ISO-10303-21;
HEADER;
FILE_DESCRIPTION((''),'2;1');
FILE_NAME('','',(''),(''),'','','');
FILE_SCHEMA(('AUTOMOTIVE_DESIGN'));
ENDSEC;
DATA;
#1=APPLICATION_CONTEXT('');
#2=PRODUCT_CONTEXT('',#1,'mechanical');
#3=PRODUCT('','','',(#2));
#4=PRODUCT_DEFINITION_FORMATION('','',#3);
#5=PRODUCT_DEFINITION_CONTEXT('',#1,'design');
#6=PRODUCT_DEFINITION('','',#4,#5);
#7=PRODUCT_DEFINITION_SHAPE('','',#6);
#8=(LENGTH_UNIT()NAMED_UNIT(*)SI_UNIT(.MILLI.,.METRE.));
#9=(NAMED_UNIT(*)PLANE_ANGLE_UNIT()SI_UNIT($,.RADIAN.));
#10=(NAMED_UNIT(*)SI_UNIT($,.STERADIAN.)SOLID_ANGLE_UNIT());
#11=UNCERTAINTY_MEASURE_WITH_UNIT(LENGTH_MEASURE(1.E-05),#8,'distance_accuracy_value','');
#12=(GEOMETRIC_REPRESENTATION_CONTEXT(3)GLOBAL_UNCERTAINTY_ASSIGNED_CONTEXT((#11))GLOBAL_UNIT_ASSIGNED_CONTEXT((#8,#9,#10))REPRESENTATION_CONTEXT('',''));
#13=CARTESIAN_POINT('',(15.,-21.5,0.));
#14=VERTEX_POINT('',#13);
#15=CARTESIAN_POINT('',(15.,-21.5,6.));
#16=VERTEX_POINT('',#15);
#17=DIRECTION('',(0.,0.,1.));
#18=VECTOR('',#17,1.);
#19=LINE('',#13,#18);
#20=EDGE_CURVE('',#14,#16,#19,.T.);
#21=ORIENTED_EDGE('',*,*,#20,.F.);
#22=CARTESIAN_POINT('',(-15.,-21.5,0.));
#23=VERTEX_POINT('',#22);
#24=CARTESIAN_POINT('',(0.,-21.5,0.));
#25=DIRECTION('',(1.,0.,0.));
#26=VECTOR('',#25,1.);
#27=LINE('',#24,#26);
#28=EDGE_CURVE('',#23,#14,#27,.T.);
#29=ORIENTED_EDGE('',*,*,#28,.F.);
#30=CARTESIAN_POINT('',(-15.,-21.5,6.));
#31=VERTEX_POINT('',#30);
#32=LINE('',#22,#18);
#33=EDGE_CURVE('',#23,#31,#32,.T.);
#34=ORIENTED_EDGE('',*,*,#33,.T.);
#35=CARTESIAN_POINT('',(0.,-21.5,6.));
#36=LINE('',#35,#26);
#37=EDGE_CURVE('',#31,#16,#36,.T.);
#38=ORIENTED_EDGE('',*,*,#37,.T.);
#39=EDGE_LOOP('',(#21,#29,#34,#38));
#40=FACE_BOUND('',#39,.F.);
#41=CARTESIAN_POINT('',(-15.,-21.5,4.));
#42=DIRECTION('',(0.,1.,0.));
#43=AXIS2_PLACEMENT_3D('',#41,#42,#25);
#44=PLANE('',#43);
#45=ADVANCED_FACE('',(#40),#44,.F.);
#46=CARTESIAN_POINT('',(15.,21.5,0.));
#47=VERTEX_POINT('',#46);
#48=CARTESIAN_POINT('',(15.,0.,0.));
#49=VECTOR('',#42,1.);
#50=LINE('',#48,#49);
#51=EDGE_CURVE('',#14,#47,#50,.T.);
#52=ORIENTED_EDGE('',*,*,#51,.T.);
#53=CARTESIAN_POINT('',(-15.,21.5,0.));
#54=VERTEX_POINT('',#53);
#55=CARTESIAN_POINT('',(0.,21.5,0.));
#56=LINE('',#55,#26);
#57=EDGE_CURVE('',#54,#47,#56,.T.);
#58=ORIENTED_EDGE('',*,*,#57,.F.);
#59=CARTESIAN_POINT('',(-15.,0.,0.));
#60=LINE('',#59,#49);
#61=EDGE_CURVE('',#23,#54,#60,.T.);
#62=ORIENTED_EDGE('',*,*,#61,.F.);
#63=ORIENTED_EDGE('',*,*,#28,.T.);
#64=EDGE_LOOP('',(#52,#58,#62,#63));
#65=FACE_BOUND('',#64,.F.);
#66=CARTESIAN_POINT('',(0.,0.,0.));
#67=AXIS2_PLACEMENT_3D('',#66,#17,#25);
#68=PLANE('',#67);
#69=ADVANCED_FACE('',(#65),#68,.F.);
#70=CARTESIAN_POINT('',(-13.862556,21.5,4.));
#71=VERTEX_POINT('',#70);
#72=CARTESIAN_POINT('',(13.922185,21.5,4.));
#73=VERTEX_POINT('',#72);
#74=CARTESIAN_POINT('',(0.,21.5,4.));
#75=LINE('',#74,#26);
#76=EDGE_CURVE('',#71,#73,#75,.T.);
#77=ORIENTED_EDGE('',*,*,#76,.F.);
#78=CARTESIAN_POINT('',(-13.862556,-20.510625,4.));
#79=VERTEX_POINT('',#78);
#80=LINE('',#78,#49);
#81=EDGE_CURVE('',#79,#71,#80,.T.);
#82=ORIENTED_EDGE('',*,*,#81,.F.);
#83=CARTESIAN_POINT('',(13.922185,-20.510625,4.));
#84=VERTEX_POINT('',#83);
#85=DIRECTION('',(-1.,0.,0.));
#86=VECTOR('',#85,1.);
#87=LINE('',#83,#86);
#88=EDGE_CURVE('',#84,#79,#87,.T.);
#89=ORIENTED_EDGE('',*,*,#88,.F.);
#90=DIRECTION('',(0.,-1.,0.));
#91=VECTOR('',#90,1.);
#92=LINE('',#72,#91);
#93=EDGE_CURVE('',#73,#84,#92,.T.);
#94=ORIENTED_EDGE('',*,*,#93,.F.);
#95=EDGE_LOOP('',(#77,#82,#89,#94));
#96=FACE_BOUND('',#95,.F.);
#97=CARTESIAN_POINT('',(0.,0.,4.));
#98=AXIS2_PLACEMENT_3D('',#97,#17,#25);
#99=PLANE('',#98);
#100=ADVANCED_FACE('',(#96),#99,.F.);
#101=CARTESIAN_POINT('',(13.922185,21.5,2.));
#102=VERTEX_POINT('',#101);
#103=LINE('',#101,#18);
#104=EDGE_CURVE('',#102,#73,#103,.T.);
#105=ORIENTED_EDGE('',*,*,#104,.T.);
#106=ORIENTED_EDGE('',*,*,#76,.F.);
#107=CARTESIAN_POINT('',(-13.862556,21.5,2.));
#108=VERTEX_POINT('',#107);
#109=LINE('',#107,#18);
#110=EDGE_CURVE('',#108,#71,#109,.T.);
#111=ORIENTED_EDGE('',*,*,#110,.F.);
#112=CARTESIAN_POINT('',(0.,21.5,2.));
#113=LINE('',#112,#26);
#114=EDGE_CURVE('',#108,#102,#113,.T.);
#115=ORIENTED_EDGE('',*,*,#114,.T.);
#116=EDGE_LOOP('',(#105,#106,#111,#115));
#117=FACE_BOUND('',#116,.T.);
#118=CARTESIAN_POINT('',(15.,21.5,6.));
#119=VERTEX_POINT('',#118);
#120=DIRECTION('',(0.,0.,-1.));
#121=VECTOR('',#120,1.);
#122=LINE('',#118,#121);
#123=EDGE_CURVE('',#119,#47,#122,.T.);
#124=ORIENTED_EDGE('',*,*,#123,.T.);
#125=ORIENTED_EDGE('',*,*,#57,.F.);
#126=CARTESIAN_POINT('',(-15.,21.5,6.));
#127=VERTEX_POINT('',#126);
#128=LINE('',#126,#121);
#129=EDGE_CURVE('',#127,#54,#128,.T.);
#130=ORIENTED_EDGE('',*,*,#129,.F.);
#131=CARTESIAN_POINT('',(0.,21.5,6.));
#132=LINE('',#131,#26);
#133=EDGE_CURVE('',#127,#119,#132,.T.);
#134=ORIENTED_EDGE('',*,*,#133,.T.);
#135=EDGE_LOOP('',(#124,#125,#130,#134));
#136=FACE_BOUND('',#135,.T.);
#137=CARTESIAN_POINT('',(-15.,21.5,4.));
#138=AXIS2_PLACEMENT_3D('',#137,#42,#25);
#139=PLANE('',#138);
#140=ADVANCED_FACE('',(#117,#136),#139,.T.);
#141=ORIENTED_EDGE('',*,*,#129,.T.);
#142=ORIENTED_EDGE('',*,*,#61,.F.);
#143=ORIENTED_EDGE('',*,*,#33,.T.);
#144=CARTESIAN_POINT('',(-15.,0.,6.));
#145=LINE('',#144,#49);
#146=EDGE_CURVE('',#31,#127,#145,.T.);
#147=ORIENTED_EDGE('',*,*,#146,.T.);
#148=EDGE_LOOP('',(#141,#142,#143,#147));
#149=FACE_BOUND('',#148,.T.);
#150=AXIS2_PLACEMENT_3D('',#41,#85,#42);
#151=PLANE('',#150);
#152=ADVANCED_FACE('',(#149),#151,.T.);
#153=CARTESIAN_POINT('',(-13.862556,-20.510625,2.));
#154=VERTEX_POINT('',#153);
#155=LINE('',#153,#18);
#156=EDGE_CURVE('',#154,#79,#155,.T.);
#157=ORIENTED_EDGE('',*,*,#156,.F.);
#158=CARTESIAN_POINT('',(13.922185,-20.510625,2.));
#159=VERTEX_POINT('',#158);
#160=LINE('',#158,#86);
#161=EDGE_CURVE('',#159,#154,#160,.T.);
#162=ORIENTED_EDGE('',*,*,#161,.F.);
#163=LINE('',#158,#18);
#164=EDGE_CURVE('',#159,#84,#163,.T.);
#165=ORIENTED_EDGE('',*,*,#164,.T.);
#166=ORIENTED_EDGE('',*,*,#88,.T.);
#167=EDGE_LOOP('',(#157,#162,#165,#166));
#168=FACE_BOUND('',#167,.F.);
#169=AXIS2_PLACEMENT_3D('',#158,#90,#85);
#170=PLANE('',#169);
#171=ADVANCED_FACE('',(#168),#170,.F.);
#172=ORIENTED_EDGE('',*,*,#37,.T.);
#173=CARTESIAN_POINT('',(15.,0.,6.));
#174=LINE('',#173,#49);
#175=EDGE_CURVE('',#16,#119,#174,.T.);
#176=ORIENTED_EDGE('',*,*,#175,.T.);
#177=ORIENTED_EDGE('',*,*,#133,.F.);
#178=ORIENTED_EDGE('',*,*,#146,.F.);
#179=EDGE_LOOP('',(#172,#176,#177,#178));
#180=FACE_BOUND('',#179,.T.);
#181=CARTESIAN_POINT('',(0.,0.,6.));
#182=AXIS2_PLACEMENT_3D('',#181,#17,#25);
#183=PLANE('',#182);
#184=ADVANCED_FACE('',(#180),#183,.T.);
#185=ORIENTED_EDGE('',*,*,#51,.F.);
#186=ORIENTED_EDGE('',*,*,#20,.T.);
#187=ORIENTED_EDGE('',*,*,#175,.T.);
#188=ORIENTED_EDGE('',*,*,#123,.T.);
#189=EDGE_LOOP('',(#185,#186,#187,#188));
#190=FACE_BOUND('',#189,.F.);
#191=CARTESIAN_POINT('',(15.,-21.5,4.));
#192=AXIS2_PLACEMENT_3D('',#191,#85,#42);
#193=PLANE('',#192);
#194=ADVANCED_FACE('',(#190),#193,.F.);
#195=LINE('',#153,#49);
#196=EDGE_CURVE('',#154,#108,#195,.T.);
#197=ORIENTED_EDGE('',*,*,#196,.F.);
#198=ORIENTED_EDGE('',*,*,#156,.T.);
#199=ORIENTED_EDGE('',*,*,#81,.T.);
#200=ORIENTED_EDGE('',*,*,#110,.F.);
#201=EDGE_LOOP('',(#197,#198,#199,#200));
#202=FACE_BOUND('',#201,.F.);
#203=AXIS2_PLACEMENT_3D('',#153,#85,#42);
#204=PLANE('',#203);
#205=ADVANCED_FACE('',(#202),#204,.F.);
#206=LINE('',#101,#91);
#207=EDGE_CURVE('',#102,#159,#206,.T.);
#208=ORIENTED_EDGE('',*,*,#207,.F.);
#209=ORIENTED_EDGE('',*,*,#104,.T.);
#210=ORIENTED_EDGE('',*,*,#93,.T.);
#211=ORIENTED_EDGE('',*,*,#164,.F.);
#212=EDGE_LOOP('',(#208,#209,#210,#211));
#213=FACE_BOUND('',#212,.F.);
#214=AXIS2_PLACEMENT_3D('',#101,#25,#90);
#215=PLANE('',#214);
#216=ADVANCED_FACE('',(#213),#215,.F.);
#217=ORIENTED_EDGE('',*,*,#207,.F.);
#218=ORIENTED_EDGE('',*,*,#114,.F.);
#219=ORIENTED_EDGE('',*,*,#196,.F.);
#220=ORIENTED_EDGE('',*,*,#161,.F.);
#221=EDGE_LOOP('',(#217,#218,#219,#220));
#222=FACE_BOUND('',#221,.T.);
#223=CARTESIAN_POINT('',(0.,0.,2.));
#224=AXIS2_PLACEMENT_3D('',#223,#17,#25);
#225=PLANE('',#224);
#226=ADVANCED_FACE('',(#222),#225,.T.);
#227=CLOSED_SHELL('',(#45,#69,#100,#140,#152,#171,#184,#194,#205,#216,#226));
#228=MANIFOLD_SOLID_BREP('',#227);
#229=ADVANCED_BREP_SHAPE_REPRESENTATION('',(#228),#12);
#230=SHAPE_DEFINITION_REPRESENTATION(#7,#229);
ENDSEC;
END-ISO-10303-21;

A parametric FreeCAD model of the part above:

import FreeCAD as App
import Part
import Sketcher
from FreeCAD import Vector

doc = App.newDocument("Part")
body = doc.addObject("PartDesign::Body", "Body")

# Sketch on XY plane
sketch1 = body.newObject("Sketcher::SketchObject", "Sketch")
sketch1.AttachmentSupport = (doc.getObject("XY_Plane"), [""])
sketch1.MapMode = "FlatFace"
sketch1.addGeometry([
    Part.LineSegment(Vector(-15, 21.5, 0), Vector(-15, -21.5, 0)),
    Part.LineSegment(Vector(-15, -21.5, 0), Vector(15, -21.5, 0)),
    Part.LineSegment(Vector(15, -21.5, 0), Vector(15, 21.5, 0)),
    Part.LineSegment(Vector(15, 21.5, 0), Vector(-15, 21.5, 0)),
], False)
sketch1.addConstraint([
    Sketcher.Constraint("Coincident", 0, 2, 1, 1),
    Sketcher.Constraint("Coincident", 1, 2, 2, 1),
    Sketcher.Constraint("Coincident", 2, 2, 3, 1),
    Sketcher.Constraint("Coincident", 3, 2, 0, 1),
    Sketcher.Constraint("Vertical", 0),
    Sketcher.Constraint("Horizontal", 1),
    Sketcher.Constraint("Vertical", 2),
    Sketcher.Constraint("Horizontal", 3),
    Sketcher.Constraint("Symmetric", 0, 2, 2, 2, -1, 1),
    Sketcher.Constraint("DistanceX", 1, 1, 1, 2, 30.0),
    Sketcher.Constraint("DistanceY", 0, 2, 0, 1, 43.0),
])
pad1 = body.newObject("PartDesign::Pad", "Pad")
pad1.Profile = sketch1
pad1.Length = 2

# Sketch on XY plane
sketch2 = body.newObject("Sketcher::SketchObject", "Sketch001")
sketch2.AttachmentSupport = (doc.getObject("XY_Plane"), [""])
sketch2.MapMode = "FlatFace"
sketch2.AttachmentOffset = App.Placement(Vector(0, 0, 2), App.Rotation())
sketch2.addGeometry([
    Part.LineSegment(Vector(-13.862556, -20.510625, 0), Vector(-13.862556, 21.5, 0)),  # 0
    Part.LineSegment(Vector(-13.862556, 21.5, 0), Vector(-15, 21.5, 0)),  # 1
    Part.LineSegment(Vector(-15, 21.5, 0), Vector(-15, -21.5, 0)),  # 2
    Part.LineSegment(Vector(-15, -21.5, 0), Vector(15, -21.5, 0)),  # 3
    Part.LineSegment(Vector(15, -21.5, 0), Vector(15, 21.5, 0)),  # 4
    Part.LineSegment(Vector(15, 21.5, 0), Vector(13.922185, 21.5, 0)),  # 5
    Part.LineSegment(Vector(13.922185, 21.5, 0), Vector(13.922185, -20.510625, 0)),  # 6
    Part.LineSegment(Vector(13.922185, -20.510625, 0), Vector(-13.862556, -20.510625, 0)),  # 7
], False)
sketch2.addConstraint([
    Sketcher.Constraint("Coincident", 0, 2, 1, 1),
    Sketcher.Constraint("Coincident", 1, 2, 2, 1),
    Sketcher.Constraint("Coincident", 2, 2, 3, 1),
    Sketcher.Constraint("Coincident", 3, 2, 4, 1),
    Sketcher.Constraint("Coincident", 4, 2, 5, 1),
    Sketcher.Constraint("Coincident", 5, 2, 6, 1),
    Sketcher.Constraint("Coincident", 6, 2, 7, 1),
    Sketcher.Constraint("Coincident", 7, 2, 0, 1),
    Sketcher.Constraint("Vertical", 0),
    Sketcher.Constraint("Horizontal", 1),
    Sketcher.Constraint("Vertical", 2),
    Sketcher.Constraint("Horizontal", 3),
    Sketcher.Constraint("Vertical", 4),
    Sketcher.Constraint("Horizontal", 5),
    Sketcher.Constraint("Vertical", 6),
    Sketcher.Constraint("Horizontal", 7),
    Sketcher.Constraint("Symmetric", 1, 2, 3, 2, -1, 1),
    Sketcher.Constraint("Horizontal", 1, 2, 4, 2),
    Sketcher.Constraint("DistanceX", 3, 1, 3, 2, 30.0),
    Sketcher.Constraint("DistanceY", 2, 2, 2, 1, 43.0),
    Sketcher.Constraint("DistanceX", 7, 2, 7, 1, 27.784741),
    Sketcher.Constraint("DistanceX", 1, 2, 1, 1, 1.137444),
    Sketcher.Constraint("DistanceY", 0, 1, 0, 2, 42.010625),
])
pad2 = body.newObject("PartDesign::Pad", "Pad001")
pad2.Profile = sketch2
pad2.Length = 2

# Sketch on XY plane
sketch3 = body.newObject("Sketcher::SketchObject", "Sketch002")
sketch3.AttachmentSupport = (doc.getObject("XY_Plane"), [""])
sketch3.MapMode = "FlatFace"
sketch3.AttachmentOffset = App.Placement(Vector(0, 0, 4), App.Rotation())
sketch3.addGeometry([
    Part.LineSegment(Vector(-15, 21.5, 0), Vector(-15, -21.5, 0)),
    Part.LineSegment(Vector(-15, -21.5, 0), Vector(15, -21.5, 0)),
    Part.LineSegment(Vector(15, -21.5, 0), Vector(15, 21.5, 0)),
    Part.LineSegment(Vector(15, 21.5, 0), Vector(-15, 21.5, 0)),
], False)
sketch3.addConstraint([
    Sketcher.Constraint("Coincident", 0, 2, 1, 1),
    Sketcher.Constraint("Coincident", 1, 2, 2, 1),
    Sketcher.Constraint("Coincident", 2, 2, 3, 1),
    Sketcher.Constraint("Coincident", 3, 2, 0, 1),
    Sketcher.Constraint("Vertical", 0),
    Sketcher.Constraint("Horizontal", 1),
    Sketcher.Constraint("Vertical", 2),
    Sketcher.Constraint("Horizontal", 3),
    Sketcher.Constraint("Symmetric", 0, 2, 2, 2, -1, 1),
    Sketcher.Constraint("DistanceX", 1, 1, 1, 2, 30.0),
    Sketcher.Constraint("DistanceY", 0, 2, 0, 1, 43.0),
])
pad3 = body.newObject("PartDesign::Pad", "Pad002")
pad3.Profile = sketch3
pad3.Length = 2

doc.recompute()
